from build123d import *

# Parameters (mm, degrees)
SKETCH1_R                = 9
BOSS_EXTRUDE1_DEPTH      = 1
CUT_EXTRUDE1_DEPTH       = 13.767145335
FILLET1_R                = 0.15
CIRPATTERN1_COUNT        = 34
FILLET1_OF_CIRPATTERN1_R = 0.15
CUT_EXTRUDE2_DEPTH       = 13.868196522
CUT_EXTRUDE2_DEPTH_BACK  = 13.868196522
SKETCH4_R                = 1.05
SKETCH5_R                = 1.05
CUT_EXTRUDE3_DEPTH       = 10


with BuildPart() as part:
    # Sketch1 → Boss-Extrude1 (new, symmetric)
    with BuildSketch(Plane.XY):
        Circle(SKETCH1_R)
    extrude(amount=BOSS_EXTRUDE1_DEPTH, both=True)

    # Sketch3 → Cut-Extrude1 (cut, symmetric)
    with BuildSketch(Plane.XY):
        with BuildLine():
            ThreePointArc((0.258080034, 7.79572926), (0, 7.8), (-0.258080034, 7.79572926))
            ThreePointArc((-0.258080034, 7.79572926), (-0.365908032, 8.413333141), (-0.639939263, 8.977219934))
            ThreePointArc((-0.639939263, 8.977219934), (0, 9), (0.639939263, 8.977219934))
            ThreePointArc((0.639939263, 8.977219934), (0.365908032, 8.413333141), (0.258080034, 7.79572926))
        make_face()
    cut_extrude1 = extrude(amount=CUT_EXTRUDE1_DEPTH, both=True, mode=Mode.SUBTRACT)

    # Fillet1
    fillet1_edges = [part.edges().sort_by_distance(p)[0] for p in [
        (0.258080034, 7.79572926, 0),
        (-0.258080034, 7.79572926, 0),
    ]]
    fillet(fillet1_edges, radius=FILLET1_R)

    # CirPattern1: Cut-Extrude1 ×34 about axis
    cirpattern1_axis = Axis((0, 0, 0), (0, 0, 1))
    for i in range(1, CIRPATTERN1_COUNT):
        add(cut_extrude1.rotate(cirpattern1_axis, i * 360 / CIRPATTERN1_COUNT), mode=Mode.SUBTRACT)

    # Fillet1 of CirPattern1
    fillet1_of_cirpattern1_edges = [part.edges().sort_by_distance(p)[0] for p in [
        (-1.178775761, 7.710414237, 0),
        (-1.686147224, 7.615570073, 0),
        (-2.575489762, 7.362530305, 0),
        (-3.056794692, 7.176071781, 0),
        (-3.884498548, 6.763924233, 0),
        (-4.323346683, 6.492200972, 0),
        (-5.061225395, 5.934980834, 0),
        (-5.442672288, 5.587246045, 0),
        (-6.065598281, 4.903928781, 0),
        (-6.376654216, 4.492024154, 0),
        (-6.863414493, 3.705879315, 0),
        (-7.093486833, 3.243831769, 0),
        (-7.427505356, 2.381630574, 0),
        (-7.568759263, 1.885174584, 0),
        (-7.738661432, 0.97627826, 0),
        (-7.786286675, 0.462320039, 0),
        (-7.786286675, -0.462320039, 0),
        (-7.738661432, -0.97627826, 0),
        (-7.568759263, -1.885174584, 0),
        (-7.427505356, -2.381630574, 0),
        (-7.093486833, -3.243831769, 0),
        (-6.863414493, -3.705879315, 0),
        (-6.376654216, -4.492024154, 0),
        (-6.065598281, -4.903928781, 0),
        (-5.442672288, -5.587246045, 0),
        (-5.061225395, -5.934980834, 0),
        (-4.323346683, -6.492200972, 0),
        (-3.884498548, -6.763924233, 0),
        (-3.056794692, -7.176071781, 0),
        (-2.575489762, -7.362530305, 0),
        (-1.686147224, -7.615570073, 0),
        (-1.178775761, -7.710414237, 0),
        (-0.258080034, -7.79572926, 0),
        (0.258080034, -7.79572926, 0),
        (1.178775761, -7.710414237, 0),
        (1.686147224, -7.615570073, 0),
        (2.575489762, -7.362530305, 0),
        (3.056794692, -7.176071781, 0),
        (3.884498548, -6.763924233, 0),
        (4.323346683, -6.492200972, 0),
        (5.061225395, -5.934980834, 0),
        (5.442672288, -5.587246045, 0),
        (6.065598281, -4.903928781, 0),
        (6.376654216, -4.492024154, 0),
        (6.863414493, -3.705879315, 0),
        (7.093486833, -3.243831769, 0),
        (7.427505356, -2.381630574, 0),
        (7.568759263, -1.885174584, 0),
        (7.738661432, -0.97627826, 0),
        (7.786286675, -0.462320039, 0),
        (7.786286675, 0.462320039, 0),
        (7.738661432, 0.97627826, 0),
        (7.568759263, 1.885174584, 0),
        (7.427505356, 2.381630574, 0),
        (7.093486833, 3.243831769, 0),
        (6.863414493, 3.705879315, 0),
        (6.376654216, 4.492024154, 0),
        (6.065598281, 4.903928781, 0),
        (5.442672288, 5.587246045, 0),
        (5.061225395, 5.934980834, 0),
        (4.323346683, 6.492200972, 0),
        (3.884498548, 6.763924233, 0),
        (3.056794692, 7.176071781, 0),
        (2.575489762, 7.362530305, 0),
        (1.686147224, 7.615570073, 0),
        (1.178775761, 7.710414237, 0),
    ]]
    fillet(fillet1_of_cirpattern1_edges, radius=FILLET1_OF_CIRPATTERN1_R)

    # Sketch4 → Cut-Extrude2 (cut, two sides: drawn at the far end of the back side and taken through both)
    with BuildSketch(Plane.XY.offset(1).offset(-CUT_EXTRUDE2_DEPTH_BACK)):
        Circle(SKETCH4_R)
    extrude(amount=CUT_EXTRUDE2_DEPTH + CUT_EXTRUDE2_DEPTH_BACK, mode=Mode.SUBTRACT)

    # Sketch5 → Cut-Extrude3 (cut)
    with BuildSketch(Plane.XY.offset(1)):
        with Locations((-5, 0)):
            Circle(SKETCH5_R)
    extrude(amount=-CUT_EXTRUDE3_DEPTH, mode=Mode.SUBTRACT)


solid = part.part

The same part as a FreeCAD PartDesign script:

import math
import FreeCAD as App
import Part
import Sketcher

V = App.Vector
Q = App.Units.Quantity


def edges_at(feature, points):
    """Names of the edges that pass closest to the given points."""
    edges = feature.Shape.Edges
    near = lambda p: min(range(len(edges)), key=lambda i: edges[i].distToShape(Part.Vertex(*p))[0])
    return sorted({f"Edge{near(p) + 1}" for p in points})

doc = App.newDocument("Part")
body = doc.addObject("PartDesign::Body", "Body")

# Sketch on XY plane
sketch1 = body.newObject("Sketcher::SketchObject", "Sketch")
sketch1.AttachmentSupport = (doc.getObject("XY_Plane"), [""])
sketch1.MapMode = "FlatFace"
sketch1.addGeometry(Part.Circle(V(0, 0, 0), V(0, 0, 1), 9), False)
sketch1.addConstraint([
    Sketcher.Constraint("Coincident", 0, 3, -1, 1),
    Sketcher.Constraint("Diameter", 0, Q("18 mm")),
])
pad1 = body.newObject("PartDesign::Pad", "Pad")
pad1.Profile = sketch1
pad1.Length = 2
pad1.Midplane = True

# Sketch on XY plane
sketch2 = body.newObject("Sketcher::SketchObject", "Sketch001")
sketch2.AttachmentSupport = (doc.getObject("XY_Plane"), [""])
sketch2.MapMode = "FlatFace"
sketch2.addGeometry([
    Part.ArcOfCircle(Part.Circle(V(0, 0, 0), V(0, 0, 1), 7.8), math.radians(88.1), math.radians(91.9)),
    Part.ArcOfCircle(Part.Circle(V(2.5, 7.7, 0), V(0, 0, 1), 2.3), math.radians(146), math.radians(178)),
    Part.ArcOfCircle(Part.Circle(V(0, 0, 0), V(0, 0, 1), 9), math.radians(85.92), math.radians(94.08)),
    Part.ArcOfCircle(Part.Circle(V(-2.5, 7.7, 0), V(0, 0, 1), 2.3), math.radians(2), math.radians(34)),
], False)
sketch2.addConstraint([
    Sketcher.Constraint("Coincident", 0, 1, 1, 2),
    Sketcher.Constraint("Coincident", 1, 1, 2, 1),
    Sketcher.Constraint("Coincident", 2, 2, 3, 2),
    Sketcher.Constraint("Coincident", 3, 1, 0, 2),
    Sketcher.Constraint("Coincident", 0, 3, -1, 1),
    Sketcher.Constraint("Coincident", 2, 3, -1, 1),
    Sketcher.Constraint("Equal", 1, 3),
    Sketcher.Constraint("Symmetric", 1, 3, 3, 3, -2),
    Sketcher.Constraint("Radius", 2, Q("9 mm")),
    Sketcher.Constraint("Radius", 0, Q("7.8 mm")),
    Sketcher.Constraint("Radius", 1, Q("2.25033 mm")),
    Sketcher.Constraint("DistanceX", -1, 1, 0, 1, Q("0.25808 mm")),
    Sketcher.Constraint("DistanceX", -1, 1, 1, 1, Q("0.639939 mm")),
])
pocket1 = body.newObject("PartDesign::Pocket", "Pocket")
pocket1.Profile = sketch2
pocket1.Length = 27.534291
pocket1.Midplane = True
doc.recompute()

fillet = body.newObject("PartDesign::Fillet", "Fillet")
fillet.Base = (pocket1, edges_at(pocket1, [(0.258, 7.796, 0), (-0.258, 7.796, 0)]))
fillet.Radius = 0.15
doc.recompute()

polarpattern = body.newObject("PartDesign::PolarPattern", "PolarPattern")
polarpattern.Originals = [pocket1]
polarpattern.Axis = (doc.getObject("Z_Axis"), [""])
polarpattern.Angle = 360
polarpattern.Occurrences = 34
body.Tip = polarpattern
doc.recompute()

fillet2 = body.newObject("PartDesign::Fillet", "Fillet001")
fillet2.Base = (polarpattern, edges_at(polarpattern, [
    (-1.179, 7.71, 0),
    (-1.686, 7.616, 0),
    (-2.575, 7.363, 0),
    (-3.057, 7.176, 0),
    (-3.884, 6.764, 0),
    (-4.323, 6.492, 0),
    (-5.061, 5.935, 0),
    (-5.443, 5.587, 0),
    (-6.066, 4.904, 0),
    (-6.377, 4.492, 0),
    (-6.863, 3.706, 0),
    (-7.093, 3.244, 0),
    (-7.428, 2.382, 0),
    (-7.569, 1.885, 0),
    (-7.739, 0.976, 0),
    (-7.786, 0.462, 0),
    (-7.786, -0.462, 0),
    (-7.739, -0.976, 0),
    (-7.569, -1.885, 0),
    (-7.428, -2.382, 0),
    (-7.093, -3.244, 0),
    (-6.863, -3.706, 0),
    (-6.377, -4.492, 0),
    (-6.066, -4.904, 0),
    (-5.443, -5.587, 0),
    (-5.061, -5.935, 0),
    (-4.323, -6.492, 0),
    (-3.884, -6.764, 0),
    (-3.057, -7.176, 0),
    (-2.575, -7.363, 0),
    (-1.686, -7.616, 0),
    (-1.179, -7.71, 0),
    (-0.258, -7.796, 0),
    (0.258, -7.796, 0),
    (1.179, -7.71, 0),
    (1.686, -7.616, 0),
    (2.575, -7.363, 0),
    (3.057, -7.176, 0),
    (3.884, -6.764, 0),
    (4.323, -6.492, 0),
    (5.061, -5.935, 0),
    (5.443, -5.587, 0),
    (6.066, -4.904, 0),
    (6.377, -4.492, 0),
    (6.863, -3.706, 0),
    (7.093, -3.244, 0),
    (7.428, -2.382, 0),
    (7.569, -1.885, 0),
    (7.739, -0.976, 0),
    (7.786, -0.462, 0),
    (7.786, 0.462, 0),
    (7.739, 0.976, 0),
    (7.569, 1.885, 0),
    (7.428, 2.382, 0),
    (7.093, 3.244, 0),
    (6.863, 3.706, 0),
    (6.377, 4.492, 0),
    (6.066, 4.904, 0),
    (5.443, 5.587, 0),
    (5.061, 5.935, 0),
    (4.323, 6.492, 0),
    (3.884, 6.764, 0),
    (3.057, 7.176, 0),
    (2.575, 7.363, 0),
    (1.686, 7.616, 0),
    (1.179, 7.71, 0),
]))
fillet2.Radius = 0.15

# Sketch on XY plane
sketch3 = body.newObject("Sketcher::SketchObject", "Sketch002")
sketch3.AttachmentSupport = (doc.getObject("XY_Plane"), [""])
sketch3.MapMode = "FlatFace"
sketch3.AttachmentOffset = App.Placement(V(0, 0, 1), App.Rotation())
sketch3.addGeometry(Part.Circle(V(0, 0, 0), V(0, 0, 1), 1.1), False)
sketch3.addConstraint([
    Sketcher.Constraint("Coincident", 0, 3, -1, 1),
    Sketcher.Constraint("Diameter", 0, Q("2.1 mm")),
])
pocket2 = body.newObject("PartDesign::Pocket", "Pocket001")
pocket2.Profile = sketch3
pocket2.Type = "ThroughAll"
pocket2.Midplane = True

# Sketch on XY plane
sketch4 = body.newObject("Sketcher::SketchObject", "Sketch003")
sketch4.AttachmentSupport = (doc.getObject("XY_Plane"), [""])
sketch4.MapMode = "FlatFace"
sketch4.AttachmentOffset = App.Placement(V(0, 0, 1), App.Rotation())
sketch4.addGeometry(Part.Circle(V(-5, 0, 0), V(0, 0, 1), 1.1), False)
sketch4.addConstraint([
    Sketcher.Constraint("PointOnObject", 0, 3, -1),
    Sketcher.Constraint("Diameter", 0, Q("2.1 mm")),
    Sketcher.Constraint("DistanceX", 0, 3, -1, 1, Q("5 mm")),
])
pocket3 = body.newObject("PartDesign::Pocket", "Pocket002")
pocket3.Profile = sketch4
pocket3.Length = 10

doc.recompute()
